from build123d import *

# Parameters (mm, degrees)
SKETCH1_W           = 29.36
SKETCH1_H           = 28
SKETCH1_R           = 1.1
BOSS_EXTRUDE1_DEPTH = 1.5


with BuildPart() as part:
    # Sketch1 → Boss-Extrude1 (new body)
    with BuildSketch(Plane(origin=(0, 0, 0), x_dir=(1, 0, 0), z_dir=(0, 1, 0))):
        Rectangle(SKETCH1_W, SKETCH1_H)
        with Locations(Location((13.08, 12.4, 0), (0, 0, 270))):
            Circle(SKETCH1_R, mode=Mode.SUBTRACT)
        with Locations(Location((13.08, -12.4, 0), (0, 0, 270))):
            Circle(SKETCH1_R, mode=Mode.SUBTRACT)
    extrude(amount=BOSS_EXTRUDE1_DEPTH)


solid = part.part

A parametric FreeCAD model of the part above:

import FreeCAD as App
import Part
import Sketcher
from FreeCAD import Vector
Q = App.Units.Quantity

doc = App.newDocument("Part")
params = doc.addObject("Spreadsheet::Sheet", "Params")
for row, (alias, value) in enumerate([
    ("sketch1_diameter", "2.2 mm"),
    ("sketch1_height", "28 mm"),
    ("sketch1_width", "29.36 mm"),
    ("pad1_length", "1.5 mm"),
], start=1):
    params.set(f"A{row}", alias)
    params.set(f"B{row}", "=" + value)
    params.setAlias(f"B{row}", alias)

body = doc.addObject("PartDesign::Body", "Body")

sketch1 = body.newObject("Sketcher::SketchObject", "Sketch")
sketch1.AttachmentSupport = (doc.getObject("XZ_Plane"), [""])
sketch1.MapMode = "FlatFace"
sketch1.addGeometry([
    Part.LineSegment(Vector(-14.68, -14, 0), Vector(-14.68, 14, 0)),
    Part.LineSegment(Vector(-14.68, 14, 0), Vector(14.68, 14, 0)),
    Part.LineSegment(Vector(14.68, 14, 0), Vector(14.68, -14, 0)),
    Part.LineSegment(Vector(14.68, -14, 0), Vector(-14.68, -14, 0)),
    Part.Circle(Vector(13.08, 12.4, 0), Vector(0, 0, 1), 1.1),
    Part.Circle(Vector(13.08, -12.4, 0), Vector(0, 0, 1), 1.1),
], False)
sketch1.addConstraint([
    Sketcher.Constraint("Coincident", 0, 2, 1, 1),
    Sketcher.Constraint("Coincident", 1, 2, 2, 1),
    Sketcher.Constraint("Coincident", 2, 2, 3, 1),
    Sketcher.Constraint("Coincident", 3, 2, 0, 1),
    Sketcher.Constraint("Vertical", 0),
    Sketcher.Constraint("Horizontal", 1),
    Sketcher.Constraint("Vertical", 2),
    Sketcher.Constraint("Horizontal", 3),
    Sketcher.Constraint("Equal", 4, 5),
    Sketcher.Constraint("Symmetric", 0, 2, 2, 2, -1, 1),
    Sketcher.Constraint("Symmetric", 4, 3, 5, 3, -1),
    Sketcher.Constraint("Diameter", 4, Q("2.2 mm")),
    Sketcher.Constraint("DistanceY", 0, 1, 0, 2, Q("28 mm")),
    Sketcher.Constraint("DistanceX", 1, 1, 1, 2, Q("29.36 mm")),
    Sketcher.Constraint("DistanceY", -1, 1, 4, 3, Q("12.4 mm")),
    Sketcher.Constraint("DistanceX", 4, 3, 1, 2, Q("1.6 mm")),
])
sketch1.setExpression("Constraints[11]", "Params.sketch1_diameter")
sketch1.setExpression("Constraints[12]", "Params.sketch1_height")
sketch1.setExpression("Constraints[13]", "Params.sketch1_width")
pad1 = body.newObject("PartDesign::Pad", "Pad")
pad1.Profile = sketch1
pad1.setExpression("Length", "Params.pad1_length")
pad1.Reversed = True

doc.recompute()
